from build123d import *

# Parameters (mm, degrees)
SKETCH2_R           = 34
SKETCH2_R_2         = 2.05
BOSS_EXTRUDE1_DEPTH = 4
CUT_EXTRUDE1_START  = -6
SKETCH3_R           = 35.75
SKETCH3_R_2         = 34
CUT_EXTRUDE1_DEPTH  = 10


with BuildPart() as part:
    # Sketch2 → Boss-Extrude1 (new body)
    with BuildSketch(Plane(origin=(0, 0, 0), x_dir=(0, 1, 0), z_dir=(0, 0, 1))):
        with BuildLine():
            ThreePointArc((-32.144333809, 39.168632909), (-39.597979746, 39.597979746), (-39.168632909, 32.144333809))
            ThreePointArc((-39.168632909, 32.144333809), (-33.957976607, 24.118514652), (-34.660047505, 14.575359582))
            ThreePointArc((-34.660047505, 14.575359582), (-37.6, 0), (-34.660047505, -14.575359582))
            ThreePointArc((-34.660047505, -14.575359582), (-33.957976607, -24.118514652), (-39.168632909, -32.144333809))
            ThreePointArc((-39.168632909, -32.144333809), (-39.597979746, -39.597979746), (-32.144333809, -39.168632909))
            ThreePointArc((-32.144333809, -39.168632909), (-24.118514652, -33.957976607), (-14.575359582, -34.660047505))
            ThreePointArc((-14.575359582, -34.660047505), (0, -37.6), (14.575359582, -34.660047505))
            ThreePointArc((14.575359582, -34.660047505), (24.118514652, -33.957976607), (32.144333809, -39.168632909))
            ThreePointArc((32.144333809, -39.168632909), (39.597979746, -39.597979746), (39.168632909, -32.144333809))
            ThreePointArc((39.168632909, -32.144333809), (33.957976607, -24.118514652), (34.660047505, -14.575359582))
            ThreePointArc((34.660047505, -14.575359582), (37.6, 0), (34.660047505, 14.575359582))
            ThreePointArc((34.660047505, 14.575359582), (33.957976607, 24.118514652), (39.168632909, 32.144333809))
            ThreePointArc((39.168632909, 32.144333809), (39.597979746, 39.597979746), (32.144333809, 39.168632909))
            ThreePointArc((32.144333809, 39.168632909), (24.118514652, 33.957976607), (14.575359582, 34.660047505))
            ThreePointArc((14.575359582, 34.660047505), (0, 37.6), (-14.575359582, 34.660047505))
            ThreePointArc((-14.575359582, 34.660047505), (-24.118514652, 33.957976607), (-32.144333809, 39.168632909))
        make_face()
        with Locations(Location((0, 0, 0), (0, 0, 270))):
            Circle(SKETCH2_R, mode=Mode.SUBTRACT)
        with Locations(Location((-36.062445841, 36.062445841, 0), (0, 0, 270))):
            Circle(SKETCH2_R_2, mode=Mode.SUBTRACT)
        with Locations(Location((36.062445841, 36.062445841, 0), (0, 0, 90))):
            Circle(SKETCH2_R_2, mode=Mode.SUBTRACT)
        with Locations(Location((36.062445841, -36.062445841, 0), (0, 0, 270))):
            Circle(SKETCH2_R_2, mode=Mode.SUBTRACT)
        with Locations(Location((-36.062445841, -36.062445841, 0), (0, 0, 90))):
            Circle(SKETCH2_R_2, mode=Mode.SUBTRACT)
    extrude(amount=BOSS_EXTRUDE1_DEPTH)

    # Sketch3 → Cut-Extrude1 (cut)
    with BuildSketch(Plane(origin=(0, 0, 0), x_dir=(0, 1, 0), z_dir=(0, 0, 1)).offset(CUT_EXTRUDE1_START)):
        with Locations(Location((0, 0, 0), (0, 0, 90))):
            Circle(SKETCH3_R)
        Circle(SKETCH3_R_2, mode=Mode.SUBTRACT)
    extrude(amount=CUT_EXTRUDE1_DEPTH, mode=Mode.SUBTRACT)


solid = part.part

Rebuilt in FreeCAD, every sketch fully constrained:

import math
import FreeCAD as App
import Part
import Sketcher

doc = App.newDocument("Part")
params = doc.addObject("Spreadsheet::Sheet", "Params")
for row, (alias, value) in enumerate([
    ("sketch1_diameter", "68 mm"),
    ("sketch1_radius", "5 mm"),
    ("sketch1_radius2", "15 mm"),
    ("sketch1_diameter2", "4.1 mm"),
    ("sketch1_radius3", "37.6 mm"),
    ("pad1_length", "4 mm"),
    ("sketch2_diameter", "68 mm"),
    ("sketch2_diameter2", "71.5 mm"),
    ("pocket1_length", "10 mm"),
], start=1):
    params.set(f"A{row}", alias)
    params.set(f"B{row}", "=" + value)
    params.setAlias(f"B{row}", alias)

body = doc.addObject("PartDesign::Body", "Body")

# Sketch on XY plane
sketch1 = body.newObject("Sketcher::SketchObject", "Sketch")
sketch1.AttachmentSupport = (doc.getObject("XY_Plane"), [""])
sketch1.MapMode = "FlatFace"
sketch1.addGeometry([
    Part.ArcOfCircle(Part.Circle(App.Vector(-36.1, -36.1, 0), App.Vector(0, 0, 1), 5), math.radians(128), math.radians(322)),  # 0
    Part.ArcOfCircle(Part.Circle(App.Vector(-20.4, -48.5, 0), App.Vector(0, 0, 1), 15), math.radians(67), math.radians(142)),  # 1
    Part.ArcOfCircle(Part.Circle(App.Vector(0, 0, 0), App.Vector(0, 0, 1), 37.6), math.radians(-113), math.radians(-67)),  # 2
    Part.ArcOfCircle(Part.Circle(App.Vector(20.4, -48.5, 0), App.Vector(0, 0, 1), 15), math.radians(38), math.radians(113)),  # 3
    Part.ArcOfCircle(Part.Circle(App.Vector(36.1, -36.1, 0), App.Vector(0, 0, 1), 5), math.radians(-142), math.radians(52)),  # 4
    Part.ArcOfCircle(Part.Circle(App.Vector(48.5, -20.4, 0), App.Vector(0, 0, 1), 15), math.radians(157), math.radians(232)),  # 5
    Part.ArcOfCircle(Part.Circle(App.Vector(0, 0, 0), App.Vector(0, 0, 1), 37.6), math.radians(-23), math.radians(23)),  # 6
    Part.ArcOfCircle(Part.Circle(App.Vector(48.5, 20.4, 0), App.Vector(0, 0, 1), 15), math.radians(128), math.radians(203)),  # 7
    Part.ArcOfCircle(Part.Circle(App.Vector(36.1, 36.1, 0), App.Vector(0, 0, 1), 5), math.radians(-52), math.radians(142)),  # 8
    Part.ArcOfCircle(Part.Circle(App.Vector(20.4, 48.5, 0), App.Vector(0, 0, 1), 15), math.radians(-113), math.radians(-38)),  # 9
    Part.ArcOfCircle(Part.Circle(App.Vector(0, 0, 0), App.Vector(0, 0, 1), 37.6), math.radians(67), math.radians(113)),  # 10
    Part.ArcOfCircle(Part.Circle(App.Vector(-20.4, 48.5, 0), App.Vector(0, 0, 1), 15), math.radians(-142), math.radians(-67)),  # 11
    Part.ArcOfCircle(Part.Circle(App.Vector(-36.1, 36.1, 0), App.Vector(0, 0, 1), 5), math.radians(38), math.radians(232)),  # 12
    Part.ArcOfCircle(Part.Circle(App.Vector(-48.5, 20.4, 0), App.Vector(0, 0, 1), 15), math.radians(-23), math.radians(52)),  # 13
    Part.ArcOfCircle(Part.Circle(App.Vector(0, 0, 0), App.Vector(0, 0, 1), 37.6), math.radians(157), math.radians(203)),  # 14
    Part.ArcOfCircle(Part.Circle(App.Vector(-48.5, -20.4, 0), App.Vector(0, 0, 1), 15), math.radians(-52), math.radians(23)),  # 15
    Part.Circle(App.Vector(36.1, -36.1, 0), App.Vector(0, 0, 1), 2),  # 16
    Part.Circle(App.Vector(36.1, 36.1, 0), App.Vector(0, 0, 1), 2),  # 17
    Part.Circle(App.Vector(-36.1, -36.1, 0), App.Vector(0, 0, 1), 2),  # 18
    Part.Circle(App.Vector(0, 0, 0), App.Vector(0, 0, 1), 34),  # 19
    Part.Circle(App.Vector(-36.1, 36.1, 0), App.Vector(0, 0, 1), 2),  # 20
], False)
sketch1.addConstraint([
    Sketcher.Constraint("Tangent", 0, 2, 1, 2),
    Sketcher.Constraint("Tangent", 1, 1, 2, 1),
    Sketcher.Constraint("Tangent", 2, 2, 3, 2),
    Sketcher.Constraint("Tangent", 3, 1, 4, 1),
    Sketcher.Constraint("Tangent", 4, 2, 5, 2),
    Sketcher.Constraint("Tangent", 5, 1, 6, 1),
    Sketcher.Constraint("Tangent", 6, 2, 7, 2),
    Sketcher.Constraint("Tangent", 7, 1, 8, 1),
    Sketcher.Constraint("Tangent", 8, 2, 9, 2),
    Sketcher.Constraint("Tangent", 9, 1, 10, 1),
    Sketcher.Constraint("Tangent", 10, 2, 11, 2),
    Sketcher.Constraint("Tangent", 11, 1, 12, 1),
    Sketcher.Constraint("Tangent", 12, 2, 13, 2),
    Sketcher.Constraint("Tangent", 13, 1, 14, 1),
    Sketcher.Constraint("Tangent", 14, 2, 15, 2),
    Sketcher.Constraint("Tangent", 15, 1, 0, 1),
    Sketcher.Constraint("Coincident", 2, 3, -1, 1),
    Sketcher.Constraint("Coincident", 6, 3, -1, 1),
    Sketcher.Constraint("Coincident", 10, 3, -1, 1),
    Sketcher.Constraint("Coincident", 14, 3, -1, 1),
    Sketcher.Constraint("Coincident", 19, 3, -1, 1),
    Sketcher.Constraint("Coincident", 16, 3, 4, 3),
    Sketcher.Constraint("Coincident", 17, 3, 8, 3),
    Sketcher.Constraint("Coincident", 18, 3, 0, 3),
    Sketcher.Constraint("Coincident", 20, 3, 12, 3),
    Sketcher.Constraint("Equal", 1, 3),
    Sketcher.Constraint("Equal", 0, 4),
    Sketcher.Constraint("Equal", 3, 5),
    Sketcher.Constraint("Equal", 2, 6),
    Sketcher.Constraint("Equal", 5, 7),
    Sketcher.Constraint("Equal", 4, 8),
    Sketcher.Constraint("Equal", 7, 9),
    Sketcher.Constraint("Equal", 6, 10),
    Sketcher.Constraint("Equal", 9, 11),
    Sketcher.Constraint("Equal", 8, 12),
    Sketcher.Constraint("Equal", 11, 13),
    Sketcher.Constraint("Equal", 10, 14),
    Sketcher.Constraint("Equal", 13, 15),
    Sketcher.Constraint("Equal", 16, 17),
    Sketcher.Constraint("Equal", 17, 18),
    Sketcher.Constraint("Equal", 18, 20),
    Sketcher.Constraint("Symmetric", 0, 3, 8, 3, -1, 1),
    Sketcher.Constraint("Symmetric", 4, 3, 12, 3, -1, 1),
    Sketcher.Constraint("Symmetric", 0, 3, 4, 3, -2),
    Sketcher.Constraint("Diameter", 19, 68.0),
    Sketcher.Constraint("Radius", 0, 5.0),
    Sketcher.Constraint("Radius", 1, 15.0),
    Sketcher.Constraint("Diameter", 16, 4.1),
    Sketcher.Constraint("Radius", 2, 37.6),
    Sketcher.Constraint("DistanceY", 0, 3, 1, 1, 1.402398),
    Sketcher.Constraint("DistanceX", 3, 1, 4, 2, 7.024299),
])
sketch1.setExpression("Constraints[44]", "Params.sketch1_diameter")
sketch1.setExpression("Constraints[45]", "Params.sketch1_radius")
sketch1.setExpression("Constraints[46]", "Params.sketch1_radius2")
sketch1.setExpression("Constraints[47]", "Params.sketch1_diameter2")
sketch1.setExpression("Constraints[48]", "Params.sketch1_radius3")
pad1 = body.newObject("PartDesign::Pad", "Pad")
pad1.Profile = sketch1
pad1.setExpression("Length", "Params.pad1_length")

# Sketch on XY plane
sketch2 = body.newObject("Sketcher::SketchObject", "Sketch001")
sketch2.AttachmentSupport = (doc.getObject("XY_Plane"), [""])
sketch2.MapMode = "FlatFace"
sketch2.AttachmentOffset = App.Placement(App.Vector(0, 0, -6), App.Rotation())
sketch2.addGeometry([
    Part.Circle(App.Vector(0, 0, 0), App.Vector(0, 0, 1), 36),
    Part.Circle(App.Vector(0, 0, 0), App.Vector(0, 0, 1), 34),
], False)
sketch2.addConstraint([
    Sketcher.Constraint("Coincident", 0, 3, -1, 1),
    Sketcher.Constraint("Coincident", 1, 3, -1, 1),
    Sketcher.Constraint("Diameter", 1, 68.0),
    Sketcher.Constraint("Diameter", 0, 71.5),
])
sketch2.setExpression("Constraints[2]", "Params.sketch2_diameter")
sketch2.setExpression("Constraints[3]", "Params.sketch2_diameter2")
pocket1 = body.newObject("PartDesign::Pocket", "Pocket")
pocket1.Profile = sketch2
pocket1.setExpression("Length", "Params.pocket1_length")
pocket1.Reversed = True

doc.recompute()
